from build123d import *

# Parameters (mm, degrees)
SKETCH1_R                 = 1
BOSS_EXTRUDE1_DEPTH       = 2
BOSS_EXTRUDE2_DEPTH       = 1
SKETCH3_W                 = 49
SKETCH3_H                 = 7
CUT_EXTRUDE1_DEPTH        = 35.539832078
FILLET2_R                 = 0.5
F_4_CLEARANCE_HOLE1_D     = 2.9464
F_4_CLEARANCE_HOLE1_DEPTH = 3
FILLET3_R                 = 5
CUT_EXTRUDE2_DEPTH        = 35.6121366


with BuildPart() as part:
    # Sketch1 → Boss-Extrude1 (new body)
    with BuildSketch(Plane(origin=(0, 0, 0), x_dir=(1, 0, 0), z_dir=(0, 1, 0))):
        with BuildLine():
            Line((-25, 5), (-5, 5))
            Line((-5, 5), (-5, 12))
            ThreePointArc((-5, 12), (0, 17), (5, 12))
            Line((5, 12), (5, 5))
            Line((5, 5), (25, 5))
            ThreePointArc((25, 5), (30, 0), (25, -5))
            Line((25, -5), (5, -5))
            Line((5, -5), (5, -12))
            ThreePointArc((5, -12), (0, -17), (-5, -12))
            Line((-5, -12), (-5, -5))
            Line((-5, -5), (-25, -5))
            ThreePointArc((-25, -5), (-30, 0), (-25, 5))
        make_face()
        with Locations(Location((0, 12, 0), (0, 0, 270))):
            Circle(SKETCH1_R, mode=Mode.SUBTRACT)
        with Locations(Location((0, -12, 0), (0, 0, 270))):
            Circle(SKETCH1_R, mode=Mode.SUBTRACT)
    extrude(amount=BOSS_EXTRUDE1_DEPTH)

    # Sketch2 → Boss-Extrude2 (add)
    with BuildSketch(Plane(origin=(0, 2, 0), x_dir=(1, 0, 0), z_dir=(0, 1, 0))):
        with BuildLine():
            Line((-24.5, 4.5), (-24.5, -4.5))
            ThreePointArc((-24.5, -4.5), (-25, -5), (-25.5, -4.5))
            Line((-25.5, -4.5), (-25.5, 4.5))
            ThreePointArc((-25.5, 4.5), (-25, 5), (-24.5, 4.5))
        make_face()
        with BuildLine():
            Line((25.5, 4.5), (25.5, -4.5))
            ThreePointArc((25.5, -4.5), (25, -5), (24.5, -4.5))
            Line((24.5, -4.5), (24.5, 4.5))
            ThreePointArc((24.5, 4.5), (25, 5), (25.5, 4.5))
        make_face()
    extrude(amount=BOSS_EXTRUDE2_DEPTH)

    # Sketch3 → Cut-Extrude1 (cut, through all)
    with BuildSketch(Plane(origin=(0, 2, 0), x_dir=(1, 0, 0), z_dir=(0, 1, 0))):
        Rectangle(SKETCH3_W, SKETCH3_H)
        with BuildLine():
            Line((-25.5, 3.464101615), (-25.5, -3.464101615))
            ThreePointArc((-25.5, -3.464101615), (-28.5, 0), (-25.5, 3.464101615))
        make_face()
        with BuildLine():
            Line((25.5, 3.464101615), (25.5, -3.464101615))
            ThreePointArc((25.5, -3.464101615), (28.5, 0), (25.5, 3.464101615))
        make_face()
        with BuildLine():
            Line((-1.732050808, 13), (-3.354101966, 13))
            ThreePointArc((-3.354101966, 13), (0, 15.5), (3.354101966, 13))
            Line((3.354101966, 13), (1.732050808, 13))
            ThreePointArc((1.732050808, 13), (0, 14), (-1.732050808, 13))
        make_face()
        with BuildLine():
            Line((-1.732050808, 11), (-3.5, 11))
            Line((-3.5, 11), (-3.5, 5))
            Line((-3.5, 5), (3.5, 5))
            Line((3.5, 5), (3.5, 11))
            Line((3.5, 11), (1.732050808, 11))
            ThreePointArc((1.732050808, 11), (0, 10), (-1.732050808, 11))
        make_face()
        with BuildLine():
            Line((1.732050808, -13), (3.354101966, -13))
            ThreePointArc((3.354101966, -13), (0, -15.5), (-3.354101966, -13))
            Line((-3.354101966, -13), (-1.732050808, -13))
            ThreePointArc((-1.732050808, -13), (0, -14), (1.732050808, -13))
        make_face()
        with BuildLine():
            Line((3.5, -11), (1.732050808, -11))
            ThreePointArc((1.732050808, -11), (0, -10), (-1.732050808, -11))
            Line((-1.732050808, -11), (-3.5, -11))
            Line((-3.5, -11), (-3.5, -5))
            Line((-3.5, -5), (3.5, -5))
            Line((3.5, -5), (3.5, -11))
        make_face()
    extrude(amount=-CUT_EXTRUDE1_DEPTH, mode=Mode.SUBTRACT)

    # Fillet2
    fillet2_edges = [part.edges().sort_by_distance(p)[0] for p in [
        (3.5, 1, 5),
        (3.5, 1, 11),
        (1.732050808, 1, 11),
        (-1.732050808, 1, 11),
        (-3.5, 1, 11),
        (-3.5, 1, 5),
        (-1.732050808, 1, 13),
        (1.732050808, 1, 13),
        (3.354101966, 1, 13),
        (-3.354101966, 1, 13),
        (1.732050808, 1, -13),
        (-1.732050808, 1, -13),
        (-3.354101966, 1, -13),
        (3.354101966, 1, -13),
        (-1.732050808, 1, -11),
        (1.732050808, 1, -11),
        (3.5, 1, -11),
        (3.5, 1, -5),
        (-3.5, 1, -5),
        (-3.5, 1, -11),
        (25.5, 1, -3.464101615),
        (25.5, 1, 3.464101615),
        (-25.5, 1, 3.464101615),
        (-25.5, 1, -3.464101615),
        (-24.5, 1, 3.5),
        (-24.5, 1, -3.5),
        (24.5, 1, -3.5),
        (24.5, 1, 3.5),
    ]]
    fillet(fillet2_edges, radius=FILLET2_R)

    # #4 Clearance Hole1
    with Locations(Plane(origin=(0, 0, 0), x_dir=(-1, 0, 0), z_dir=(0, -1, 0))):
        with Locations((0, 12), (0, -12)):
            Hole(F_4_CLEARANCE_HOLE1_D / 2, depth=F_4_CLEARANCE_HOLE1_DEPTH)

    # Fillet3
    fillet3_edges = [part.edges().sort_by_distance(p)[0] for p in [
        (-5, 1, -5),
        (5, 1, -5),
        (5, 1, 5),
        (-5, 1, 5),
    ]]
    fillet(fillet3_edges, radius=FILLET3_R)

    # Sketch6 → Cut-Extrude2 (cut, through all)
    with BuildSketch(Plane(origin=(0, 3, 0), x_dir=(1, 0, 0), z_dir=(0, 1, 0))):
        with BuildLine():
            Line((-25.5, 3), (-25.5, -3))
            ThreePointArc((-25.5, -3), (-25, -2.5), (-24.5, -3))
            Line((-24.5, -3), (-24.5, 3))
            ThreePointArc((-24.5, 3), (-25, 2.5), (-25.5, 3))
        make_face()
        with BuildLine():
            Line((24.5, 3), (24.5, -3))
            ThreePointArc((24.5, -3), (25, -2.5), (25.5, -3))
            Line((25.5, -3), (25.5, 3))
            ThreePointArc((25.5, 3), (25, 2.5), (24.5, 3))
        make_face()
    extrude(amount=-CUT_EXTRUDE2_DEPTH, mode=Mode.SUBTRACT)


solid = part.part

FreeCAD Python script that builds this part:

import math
import FreeCAD as App
import Part
import Sketcher
from FreeCAD import Vector


def edges_at(feature, points):
    """Names of the edges that pass closest to the given points."""
    edges = feature.Shape.Edges
    near = lambda p: min(range(len(edges)), key=lambda i: edges[i].distToShape(Part.Vertex(*p))[0])
    return sorted({f"Edge{near(p) + 1}" for p in points})


def add_polygon(sketch, points):
    """Adds a closed chain of lines whose ends are joined by coincident constraints."""
    first, n = sketch.GeometryCount, len(points)
    for a, b in zip(points, points[1:] + points[:1]):
        sketch.addGeometry(Part.LineSegment(App.Vector(*a, 0), App.Vector(*b, 0)), False)
    for i in range(n):
        sketch.addConstraint(Sketcher.Constraint("Coincident", first + i, 2, first + (i + 1) % n, 1))

doc = App.newDocument("Part")
body = doc.addObject("PartDesign::Body", "Body")

sketch1 = body.newObject("Sketcher::SketchObject", "Sketch")
sketch1.AttachmentSupport = (doc.getObject("XZ_Plane"), [""])
sketch1.MapMode = "FlatFace"
sketch1.addGeometry(Part.LineSegment(Vector(-5, -5, 0), Vector(-25, -5, 0)), False)
sketch1.addGeometry(Part.ArcOfCircle(Part.Circle(Vector(-25, 0, 0), Vector(0, 0, 1), 5), math.radians(90), math.radians(270)), False)
sketch1.addGeometry(Part.LineSegment(Vector(-25, 5, 0), Vector(-5, 5, 0)), False)
sketch1.addGeometry(Part.LineSegment(Vector(-5, 5, 0), Vector(-5, 12, 0)), False)
sketch1.addGeometry(Part.ArcOfCircle(Part.Circle(Vector(0, 12, 0), Vector(0, 0, 1), 5), math.radians(0), math.radians(180)), False)
sketch1.addGeometry(Part.LineSegment(Vector(5, 12, 0), Vector(5, 5, 0)), False)
sketch1.addGeometry(Part.LineSegment(Vector(5, 5, 0), Vector(25, 5, 0)), False)
sketch1.addGeometry(Part.ArcOfCircle(Part.Circle(Vector(25, 0, 0), Vector(0, 0, 1), 5), math.radians(-90), math.radians(90)), False)
sketch1.addGeometry(Part.LineSegment(Vector(25, -5, 0), Vector(5, -5, 0)), False)
sketch1.addGeometry(Part.LineSegment(Vector(5, -5, 0), Vector(5, -12, 0)), False)
sketch1.addGeometry(Part.ArcOfCircle(Part.Circle(Vector(0, -12, 0), Vector(0, 0, 1), 5), math.radians(180), math.radians(360)), False)
sketch1.addGeometry(Part.LineSegment(Vector(-5, -12, 0), Vector(-5, -5, 0)), False)
sketch1.addGeometry(Part.Circle(Vector(0, 12, 0), Vector(0, 0, 1), 1), False)
sketch1.addGeometry(Part.Circle(Vector(0, -12, 0), Vector(0, 0, 1), 1), False)
sketch1.addConstraint(Sketcher.Constraint("Tangent", 0, 2, 1, 2))
sketch1.addConstraint(Sketcher.Constraint("Tangent", 1, 1, 2, 1))
sketch1.addConstraint(Sketcher.Constraint("Coincident", 2, 2, 3, 1))
sketch1.addConstraint(Sketcher.Constraint("Tangent", 3, 2, 4, 2))
sketch1.addConstraint(Sketcher.Constraint("Tangent", 4, 1, 5, 1))
sketch1.addConstraint(Sketcher.Constraint("Coincident", 5, 2, 6, 1))
sketch1.addConstraint(Sketcher.Constraint("Tangent", 6, 2, 7, 2))
sketch1.addConstraint(Sketcher.Constraint("Tangent", 7, 1, 8, 1))
sketch1.addConstraint(Sketcher.Constraint("Coincident", 8, 2, 9, 1))
sketch1.addConstraint(Sketcher.Constraint("Tangent", 9, 2, 10, 2))
sketch1.addConstraint(Sketcher.Constraint("Tangent", 10, 1, 11, 1))
sketch1.addConstraint(Sketcher.Constraint("Coincident", 11, 2, 0, 1))
sketch1.addConstraint(Sketcher.Constraint("Horizontal", 0))
sketch1.addConstraint(Sketcher.Constraint("Horizontal", 2))
sketch1.addConstraint(Sketcher.Constraint("Vertical", 3))
sketch1.addConstraint(Sketcher.Constraint("Vertical", 5))
sketch1.addConstraint(Sketcher.Constraint("Horizontal", 6))
sketch1.addConstraint(Sketcher.Constraint("Horizontal", 8))
sketch1.addConstraint(Sketcher.Constraint("Vertical", 9))
sketch1.addConstraint(Sketcher.Constraint("Vertical", 11))
sketch1.addConstraint(Sketcher.Constraint("Coincident", 12, 3, 4, 3))
sketch1.addConstraint(Sketcher.Constraint("Coincident", 13, 3, 10, 3))
sketch1.addConstraint(Sketcher.Constraint("Equal", 1, 4))
sketch1.addConstraint(Sketcher.Constraint("Equal", 4, 7))
sketch1.addConstraint(Sketcher.Constraint("Equal", 7, 10))
sketch1.addConstraint(Sketcher.Constraint("Equal", 12, 13))
sketch1.addConstraint(Sketcher.Constraint("Symmetric", 1, 3, 7, 3, -1, 1))
sketch1.addConstraint(Sketcher.Constraint("Symmetric", 4, 3, 10, 3, -1, 1))
sketch1.addConstraint(Sketcher.Constraint("Symmetric", 2, 2, 5, 2, -2))
sketch1.addConstraint(Sketcher.Constraint("Diameter", 12, 2.0))
sketch1.addConstraint(Sketcher.Constraint("Radius", 1, 5.0))
sketch1.addConstraint(Sketcher.Constraint("DistanceX", 0, 2, 0, 1, 20.0))
sketch1.addConstraint(Sketcher.Constraint("DistanceY", 3, 1, 3, 2, 7.0))
pad1 = body.newObject("PartDesign::Pad", "Pad")
pad1.Profile = sketch1
pad1.Length = 2
pad1.Reversed = True

sketch2 = body.newObject("Sketcher::SketchObject", "Sketch001")
sketch2.AttachmentSupport = (doc.getObject("XZ_Plane"), [""])
sketch2.MapMode = "FlatFace"
sketch2.AttachmentOffset = App.Placement(Vector(0, 0, -2), App.Rotation())
sketch2.addGeometry(Part.LineSegment(Vector(-24.5, 4.5, 0), Vector(-24.5, -4.5, 0)), False)
sketch2.addGeometry(Part.ArcOfCircle(Part.Circle(Vector(-25, -4.5, 0), Vector(0, 0, 1), 0.5), math.radians(180), math.radians(360)), False)
sketch2.addGeometry(Part.LineSegment(Vector(-25.5, -4.5, 0), Vector(-25.5, 4.5, 0)), False)
sketch2.addGeometry(Part.ArcOfCircle(Part.Circle(Vector(-25, 4.5, 0), Vector(0, 0, 1), 0.5), math.radians(0), math.radians(180)), False)
sketch2.addGeometry(Part.LineSegment(Vector(25.5, 4.5, 0), Vector(25.5, -4.5, 0)), False)
sketch2.addGeometry(Part.ArcOfCircle(Part.Circle(Vector(25, -4.5, 0), Vector(0, 0, 1), 0.5), math.radians(180), math.radians(360)), False)
sketch2.addGeometry(Part.LineSegment(Vector(24.5, -4.5, 0), Vector(24.5, 4.5, 0)), False)
sketch2.addGeometry(Part.ArcOfCircle(Part.Circle(Vector(25, 4.5, 0), Vector(0, 0, 1), 0.5), math.radians(0), math.radians(180)), False)
sketch2.addConstraint(Sketcher.Constraint("Tangent", 0, 2, 1, 2))
sketch2.addConstraint(Sketcher.Constraint("Tangent", 1, 1, 2, 1))
sketch2.addConstraint(Sketcher.Constraint("Tangent", 2, 2, 3, 2))
sketch2.addConstraint(Sketcher.Constraint("Tangent", 3, 1, 0, 1))
sketch2.addConstraint(Sketcher.Constraint("Tangent", 4, 2, 5, 2))
sketch2.addConstraint(Sketcher.Constraint("Tangent", 5, 1, 6, 1))
sketch2.addConstraint(Sketcher.Constraint("Tangent", 6, 2, 7, 2))
sketch2.addConstraint(Sketcher.Constraint("Tangent", 7, 1, 4, 1))
sketch2.addConstraint(Sketcher.Constraint("Vertical", 0))
sketch2.addConstraint(Sketcher.Constraint("Vertical", 2))
sketch2.addConstraint(Sketcher.Constraint("Vertical", 4))
sketch2.addConstraint(Sketcher.Constraint("Vertical", 6))
sketch2.addConstraint(Sketcher.Constraint("Equal", 3, 5))
sketch2.addConstraint(Sketcher.Constraint("Symmetric", 3, 3, 5, 3, -1, 1))
sketch2.addConstraint(Sketcher.Constraint("Horizontal", 1, 3, 5, 3))
sketch2.addConstraint(Sketcher.Constraint("Horizontal", 3, 3, 7, 3))
sketch2.addConstraint(Sketcher.Constraint("Radius", 1, 0.5))
sketch2.addConstraint(Sketcher.Constraint("DistanceY", 0, 2, 0, 1, 9.0))
sketch2.addConstraint(Sketcher.Constraint("DistanceX", 1, 3, -1, 1, 25.0))
pad2 = body.newObject("PartDesign::Pad", "Pad001")
pad2.Profile = sketch2
pad2.Length = 1
pad2.Reversed = True

sketch3 = body.newObject("Sketcher::SketchObject", "Sketch002")
sketch3.AttachmentSupport = (doc.getObject("XZ_Plane"), [""])
sketch3.MapMode = "FlatFace"
sketch3.AttachmentOffset = App.Placement(Vector(0, 0, -2), App.Rotation())
add_polygon(sketch3, [(-24.5, -3.5), (-24.5, 3.5), (24.5, 3.5), (24.5, -3.5)])
sketch3.addGeometry(Part.LineSegment(Vector(-25.5, 3.464102, 0), Vector(-25.5, -3.464102, 0)), False)
sketch3.addGeometry(Part.ArcOfCircle(Part.Circle(Vector(-25, 0, 0), Vector(0, 0, 1), 3.5), math.radians(98.213211), math.radians(261.786789)), False)
sketch3.addGeometry(Part.LineSegment(Vector(25.5, -3.464102, 0), Vector(25.5, 3.464102, 0)), False)
sketch3.addGeometry(Part.ArcOfCircle(Part.Circle(Vector(25, 0, 0), Vector(0, 0, 1), 3.5), math.radians(-81.786789), math.radians(81.786789)), False)
sketch3.addGeometry(Part.LineSegment(Vector(-3.354102, -13, 0), Vector(-1.732051, -13, 0)), False)
sketch3.addGeometry(Part.ArcOfCircle(Part.Circle(Vector(0, -12, 0), Vector(0, 0, 1), 2), math.radians(-150), math.radians(-30)), False)
sketch3.addGeometry(Part.LineSegment(Vector(1.732051, -13, 0), Vector(3.354102, -13, 0)), False)
sketch3.addGeometry(Part.ArcOfCircle(Part.Circle(Vector(0, -12, 0), Vector(0, 0, 1), 3.5), math.radians(-163.39845), math.radians(-16.60155)), False)
sketch3.addGeometry(Part.LineSegment(Vector(-1.732051, -11, 0), Vector(-3.5, -11, 0)), False)
sketch3.addGeometry(Part.LineSegment(Vector(-3.5, -11, 0), Vector(-3.5, -5, 0)), False)
sketch3.addGeometry(Part.LineSegment(Vector(-3.5, -5, 0), Vector(3.5, -5, 0)), False)
sketch3.addGeometry(Part.LineSegment(Vector(3.5, -5, 0), Vector(3.5, -11, 0)), False)
sketch3.addGeometry(Part.LineSegment(Vector(3.5, -11, 0), Vector(1.732051, -11, 0)), False)
sketch3.addGeometry(Part.ArcOfCircle(Part.Circle(Vector(0, -12, 0), Vector(0, 0, 1), 2), math.radians(30), math.radians(150)), False)
sketch3.addGeometry(Part.LineSegment(Vector(3.354102, 13, 0), Vector(1.732051, 13, 0)), False)
sketch3.addGeometry(Part.ArcOfCircle(Part.Circle(Vector(0, 12, 0), Vector(0, 0, 1), 2), math.radians(30), math.radians(150)), False)
sketch3.addGeometry(Part.LineSegment(Vector(-1.732051, 13, 0), Vector(-3.354102, 13, 0)), False)
sketch3.addGeometry(Part.ArcOfCircle(Part.Circle(Vector(0, 12, 0), Vector(0, 0, 1), 3.5), math.radians(16.60155), math.radians(163.39845)), False)
sketch3.addGeometry(Part.LineSegment(Vector(1.732051, 11, 0), Vector(3.5, 11, 0)), False)
sketch3.addGeometry(Part.LineSegment(Vector(3.5, 11, 0), Vector(3.5, 5, 0)), False)
sketch3.addGeometry(Part.LineSegment(Vector(3.5, 5, 0), Vector(-3.5, 5, 0)), False)
sketch3.addGeometry(Part.LineSegment(Vector(-3.5, 5, 0), Vector(-3.5, 11, 0)), False)
sketch3.addGeometry(Part.LineSegment(Vector(-3.5, 11, 0), Vector(-1.732051, 11, 0)), False)
sketch3.addGeometry(Part.ArcOfCircle(Part.Circle(Vector(0, 12, 0), Vector(0, 0, 1), 2), math.radians(-150), math.radians(-30)), False)
sketch3.addConstraint(Sketcher.Constraint("Coincident", 4, 1, 5, 1))
sketch3.addConstraint(Sketcher.Constraint("Coincident", 5, 2, 4, 2))
sketch3.addConstraint(Sketcher.Constraint("Coincident", 6, 1, 7, 1))
sketch3.addConstraint(Sketcher.Constraint("Coincident", 7, 2, 6, 2))
sketch3.addConstraint(Sketcher.Constraint("Coincident", 8, 2, 9, 1))
sketch3.addConstraint(Sketcher.Constraint("Coincident", 9, 2, 10, 1))
sketch3.addConstraint(Sketcher.Constraint("Coincident", 10, 2, 11, 2))
sketch3.addConstraint(Sketcher.Constraint("Coincident", 11, 1, 8, 1))
sketch3.addConstraint(Sketcher.Constraint("Coincident", 12, 2, 13, 1))
sketch3.addConstraint(Sketcher.Constraint("Coincident", 13, 2, 14, 1))
sketch3.addConstraint(Sketcher.Constraint("Coincident", 14, 2, 15, 1))
sketch3.addConstraint(Sketcher.Constraint("Coincident", 15, 2, 16, 1))
sketch3.addConstraint(Sketcher.Constraint("Coincident", 16, 2, 17, 1))
sketch3.addConstraint(Sketcher.Constraint("Coincident", 17, 2, 12, 1))
sketch3.addConstraint(Sketcher.Constraint("Coincident", 18, 2, 19, 1))
sketch3.addConstraint(Sketcher.Constraint("Coincident", 19, 2, 20, 1))
sketch3.addConstraint(Sketcher.Constraint("Coincident", 20, 2, 21, 2))
sketch3.addConstraint(Sketcher.Constraint("Coincident", 21, 1, 18, 1))
sketch3.addConstraint(Sketcher.Constraint("Coincident", 22, 2, 23, 1))
sketch3.addConstraint(Sketcher.Constraint("Coincident", 23, 2, 24, 1))
sketch3.addConstraint(Sketcher.Constraint("Coincident", 24, 2, 25, 1))
sketch3.addConstraint(Sketcher.Constraint("Coincident", 25, 2, 26, 1))
sketch3.addConstraint(Sketcher.Constraint("Coincident", 26, 2, 27, 1))
sketch3.addConstraint(Sketcher.Constraint("Coincident", 27, 2, 22, 1))
sketch3.addConstraint(Sketcher.Constraint("Vertical", 0))
sketch3.addConstraint(Sketcher.Constraint("Horizontal", 1))
sketch3.addConstraint(Sketcher.Constraint("Vertical", 2))
sketch3.addConstraint(Sketcher.Constraint("Horizontal", 3))
sketch3.addConstraint(Sketcher.Constraint("Vertical", 4))
sketch3.addConstraint(Sketcher.Constraint("Vertical", 6))
sketch3.addConstraint(Sketcher.Constraint("Horizontal", 8))
sketch3.addConstraint(Sketcher.Constraint("Horizontal", 10))
sketch3.addConstraint(Sketcher.Constraint("Horizontal", 12))
sketch3.addConstraint(Sketcher.Constraint("Vertical", 13))
sketch3.addConstraint(Sketcher.Constraint("Horizontal", 14))
sketch3.addConstraint(Sketcher.Constraint("Vertical", 15))
sketch3.addConstraint(Sketcher.Constraint("Horizontal", 16))
sketch3.addConstraint(Sketcher.Constraint("Horizontal", 18))
sketch3.addConstraint(Sketcher.Constraint("Horizontal", 20))
sketch3.addConstraint(Sketcher.Constraint("Horizontal", 22))
sketch3.addConstraint(Sketcher.Constraint("Vertical", 23))
sketch3.addConstraint(Sketcher.Constraint("Horizontal", 24))
sketch3.addConstraint(Sketcher.Constraint("Vertical", 25))
sketch3.addConstraint(Sketcher.Constraint("Horizontal", 26))
sketch3.addConstraint(Sketcher.Constraint("Coincident", 11, 3, 9, 3))
sketch3.addConstraint(Sketcher.Constraint("Coincident", 17, 3, 9, 3))
sketch3.addConstraint(Sketcher.Constraint("Coincident", 21, 3, 19, 3))
sketch3.addConstraint(Sketcher.Constraint("Coincident", 27, 3, 19, 3))
sketch3.addConstraint(Sketcher.Constraint("Equal", 5, 7))
sketch3.addConstraint(Sketcher.Constraint("Equal", 7, 11))
sketch3.addConstraint(Sketcher.Constraint("Equal", 9, 17))
sketch3.addConstraint(Sketcher.Constraint("Equal", 17, 19))
sketch3.addConstraint(Sketcher.Constraint("Equal", 11, 21))
sketch3.addConstraint(Sketcher.Constraint("Equal", 19, 27))
sketch3.addConstraint(Sketcher.Constraint("Symmetric", 5, 3, 7, 3, -1, 1))
sketch3.addConstraint(Sketcher.Constraint("Symmetric", 9, 3, 19, 3, -1, 1))
sketch3.addConstraint(Sketcher.Constraint("Symmetric", 0, 2, 2, 2, -1, 1))
sketch3.addConstraint(Sketcher.Constraint("Symmetric", 12, 2, 22, 2, -1, 1))
sketch3.addConstraint(Sketcher.Constraint("Symmetric", 14, 2, 24, 2, -1, 1))
sketch3.addConstraint(Sketcher.Constraint("Symmetric", 5, 2, 6, 1, -2))
sketch3.addConstraint(Sketcher.Constraint("Symmetric", 8, 2, 9, 2, -2))
sketch3.addConstraint(Sketcher.Constraint("Symmetric", 12, 2, 15, 2, -2))
sketch3.addConstraint(Sketcher.Constraint("Horizontal", 18, 2, 19, 2))
sketch3.addConstraint(Sketcher.Constraint("Horizontal", 22, 2, 25, 2))
sketch3.addConstraint(Sketcher.Constraint("Vertical", 9, 2, 16, 2))
sketch3.addConstraint(Sketcher.Constraint("Vertical", 16, 2, 18, 2))
sketch3.addConstraint(Sketcher.Constraint("Equal", 24, 0))
sketch3.addConstraint(Sketcher.Constraint("Radius", 9, 2.0))
sketch3.addConstraint(Sketcher.Constraint("Radius", 5, 3.5))
sketch3.addConstraint(Sketcher.Constraint("DistanceX", 1, 1, 1, 2, 49.0))
sketch3.addConstraint(Sketcher.Constraint("DistanceX", 14, 1, 14, 2, 7.0))
sketch3.addConstraint(Sketcher.Constraint("DistanceY", 13, 1, 13, 2, 6.0))
sketch3.addConstraint(Sketcher.Constraint("DistanceX", 5, 3, -1, 1, 25.0))
sketch3.addConstraint(Sketcher.Constraint("DistanceY", 9, 3, -1, 1, 12.0))
sketch3.addConstraint(Sketcher.Constraint("DistanceY", 8, 2, -1, 1, 13.0))
sketch3.addConstraint(Sketcher.Constraint("DistanceX", 4, 1, 0, 2, 1.0))
pocket1 = body.newObject("PartDesign::Pocket", "Pocket")
pocket1.Profile = sketch3
pocket1.Type = "ThroughAll"
pocket1.Reversed = True
doc.recompute()

fillet = body.newObject("PartDesign::Fillet", "Fillet")
fillet.Base = (pocket1, edges_at(pocket1, [
    (3.5, 1, 5),
    (3.5, 1, 11),
    (1.732, 1, 11),
    (-1.732, 1, 11),
    (-3.5, 1, 11),
    (-3.5, 1, 5),
    (-1.732, 1, 13),
    (1.732, 1, 13),
    (3.354, 1, 13),
    (-3.354, 1, 13),
    (1.732, 1, -13),
    (-1.732, 1, -13),
    (-3.354, 1, -13),
    (3.354, 1, -13),
    (-1.732, 1, -11),
    (1.732, 1, -11),
    (3.5, 1, -11),
    (3.5, 1, -5),
    (-3.5, 1, -5),
    (-3.5, 1, -11),
    (25.5, 1, -3.464),
    (25.5, 1, 3.464),
    (-25.5, 1, 3.464),
    (-25.5, 1, -3.464),
    (-24.5, 1, 3.5),
    (-24.5, 1, -3.5),
    (24.5, 1, -3.5),
    (24.5, 1, 3.5),
]))
fillet.Radius = 0.5

sketch4 = body.newObject("Sketcher::SketchObject", "Sketch003")
sketch4.AttachmentSupport = (doc.getObject("XZ_Plane"), [""])
sketch4.MapMode = "FlatFace"
sketch4.addGeometry(Part.Circle(Vector(0, -12, 0), Vector(0, 0, 1), 1.4732), False)
sketch4.addGeometry(Part.Circle(Vector(0, 12, 0), Vector(0, 0, 1), 1.4732), False)
sketch4.addConstraint(Sketcher.Constraint("Equal", 0, 1))
sketch4.addConstraint(Sketcher.Constraint("Symmetric", 0, 3, 1, 3, -1, 1))
sketch4.addConstraint(Sketcher.Constraint("PointOnObject", 0, 3, -2))
sketch4.addConstraint(Sketcher.Constraint("DistanceY", 0, 3, -1, 1, 12.0))
sketch4.addConstraint(Sketcher.Constraint("Diameter", 0, 2.9464))
doc.recompute()
hole = body.newObject("PartDesign::Hole", "Hole")
hole.Profile = sketch4
hole.ThreadType = "None"
hole.Diameter = 2.9464
hole.DepthType = "Dimension"
hole.Depth = 3
hole.DrillPoint = "Flat"
doc.recompute()

fillet2 = body.newObject("PartDesign::Fillet", "Fillet001")
fillet2.Base = (hole, edges_at(hole, [
    (-5, 1, -5),
    (5, 1, -5),
    (5, 1, 5),
    (-5, 1, 5),
]))
fillet2.Radius = 5

sketch5 = body.newObject("Sketcher::SketchObject", "Sketch004")
sketch5.AttachmentSupport = (doc.getObject("XZ_Plane"), [""])
sketch5.MapMode = "FlatFace"
sketch5.AttachmentOffset = App.Placement(Vector(0, 0, -3), App.Rotation())
sketch5.addGeometry(Part.LineSegment(Vector(-25.5, -3, 0), Vector(-25.5, 3, 0)), False)
sketch5.addGeometry(Part.ArcOfCircle(Part.Circle(Vector(-25, 3, 0), Vector(0, 0, 1), 0.5), math.radians(180), math.radians(360)), False)
sketch5.addGeometry(Part.LineSegment(Vector(-24.5, 3, 0), Vector(-24.5, -3, 0)), False)
sketch5.addGeometry(Part.ArcOfCircle(Part.Circle(Vector(-25, -3, 0), Vector(0, 0, 1), 0.5), math.radians(0), math.radians(180)), False)
sketch5.addGeometry(Part.LineSegment(Vector(24.5, -3, 0), Vector(24.5, 3, 0)), False)
sketch5.addGeometry(Part.ArcOfCircle(Part.Circle(Vector(25, 3, 0), Vector(0, 0, 1), 0.5), math.radians(180), math.radians(360)), False)
sketch5.addGeometry(Part.LineSegment(Vector(25.5, 3, 0), Vector(25.5, -3, 0)), False)
sketch5.addGeometry(Part.ArcOfCircle(Part.Circle(Vector(25, -3, 0), Vector(0, 0, 1), 0.5), math.radians(0), math.radians(180)), False)
sketch5.addConstraint(Sketcher.Constraint("Tangent", 0, 2, 1, 1))
sketch5.addConstraint(Sketcher.Constraint("Tangent", 1, 2, 2, 1))
sketch5.addConstraint(Sketcher.Constraint("Tangent", 2, 2, 3, 1))
sketch5.addConstraint(Sketcher.Constraint("Tangent", 3, 2, 0, 1))
sketch5.addConstraint(Sketcher.Constraint("Tangent", 4, 2, 5, 1))
sketch5.addConstraint(Sketcher.Constraint("Tangent", 5, 2, 6, 1))
sketch5.addConstraint(Sketcher.Constraint("Tangent", 6, 2, 7, 1))
sketch5.addConstraint(Sketcher.Constraint("Tangent", 7, 2, 4, 1))
sketch5.addConstraint(Sketcher.Constraint("Vertical", 0))
sketch5.addConstraint(Sketcher.Constraint("Vertical", 2))
sketch5.addConstraint(Sketcher.Constraint("Vertical", 4))
sketch5.addConstraint(Sketcher.Constraint("Vertical", 6))
sketch5.addConstraint(Sketcher.Constraint("Equal", 3, 5))
sketch5.addConstraint(Sketcher.Constraint("Symmetric", 3, 3, 5, 3, -1, 1))
sketch5.addConstraint(Sketcher.Constraint("Horizontal", 1, 3, 5, 3))
sketch5.addConstraint(Sketcher.Constraint("Horizontal", 3, 3, 7, 3))
sketch5.addConstraint(Sketcher.Constraint("Radius", 1, 0.5))
sketch5.addConstraint(Sketcher.Constraint("DistanceY", 0, 1, 0, 2, 6.0))
sketch5.addConstraint(Sketcher.Constraint("DistanceX", 1, 3, -1, 1, 25.0))
pocket2 = body.newObject("PartDesign::Pocket", "Pocket001")
pocket2.Profile = sketch5
pocket2.Type = "ThroughAll"
pocket2.Reversed = True

doc.recompute()
